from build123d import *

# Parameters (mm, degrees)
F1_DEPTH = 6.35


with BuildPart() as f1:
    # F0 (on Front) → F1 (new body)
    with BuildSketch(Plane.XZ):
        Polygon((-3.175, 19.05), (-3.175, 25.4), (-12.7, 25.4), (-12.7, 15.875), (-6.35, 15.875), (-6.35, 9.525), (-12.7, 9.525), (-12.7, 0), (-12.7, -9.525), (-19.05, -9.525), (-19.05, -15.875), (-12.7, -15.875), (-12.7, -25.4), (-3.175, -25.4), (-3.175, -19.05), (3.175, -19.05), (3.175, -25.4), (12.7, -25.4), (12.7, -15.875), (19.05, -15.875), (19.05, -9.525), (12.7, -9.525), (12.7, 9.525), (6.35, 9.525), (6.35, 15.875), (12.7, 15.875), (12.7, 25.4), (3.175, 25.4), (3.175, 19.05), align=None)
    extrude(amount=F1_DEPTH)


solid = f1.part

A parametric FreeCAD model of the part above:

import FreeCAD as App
import Part
import Sketcher
from FreeCAD import Vector
Q = App.Units.Quantity


def add_polygon(sketch, points):
    """Adds a closed chain of lines whose ends are joined by coincident constraints."""
    first, n = sketch.GeometryCount, len(points)
    for a, b in zip(points, points[1:] + points[:1]):
        sketch.addGeometry(Part.LineSegment(App.Vector(*a, 0), App.Vector(*b, 0)), False)
    for i in range(n):
        sketch.addConstraint(Sketcher.Constraint("Coincident", first + i, 2, first + (i + 1) % n, 1))

doc = App.newDocument("Part")
params = doc.addObject("Spreadsheet::Sheet", "Params")
for row, (alias, value) in enumerate([
    ("sketch1_width", "0.25 in"),
    ("pad1_length", "0.25 in"),
], start=1):
    params.set(f"A{row}", alias)
    params.set(f"B{row}", "=" + value)
    params.setAlias(f"B{row}", alias)

body = doc.addObject("PartDesign::Body", "Body")

# Sketch on XZ plane
sketch1 = body.newObject("Sketcher::SketchObject", "Sketch")
sketch1.AttachmentSupport = (doc.getObject("XZ_Plane"), [""])
sketch1.MapMode = "FlatFace"
add_polygon(sketch1, [(-3, 19), (-3, 25), (-13, 25), (-13, 16), (-6, 16), (-6, 10), (-13, 10), (-13, -10), (-19, -10), (-19, -16), (-13, -16), (-13, -25), (-3, -25), (-3, -19), (3, -19), (3, -25), (13, -25), (13, -16), (19, -16), (19, -10), (13, -10), (13, 10), (6, 10), (6, 16), (13, 16), (13, 25), (3, 25), (3, 19)])  # lines 0-27
sketch1.addConstraint([
    Sketcher.Constraint("Vertical", 0),
    Sketcher.Constraint("Horizontal", 1),
    Sketcher.Constraint("Vertical", 2),
    Sketcher.Constraint("Horizontal", 3),
    Sketcher.Constraint("Vertical", 4),
    Sketcher.Constraint("Horizontal", 5),
    Sketcher.Constraint("Vertical", 6),
    Sketcher.Constraint("Horizontal", 7),
    Sketcher.Constraint("Vertical", 8),
    Sketcher.Constraint("Horizontal", 9),
    Sketcher.Constraint("Vertical", 10),
    Sketcher.Constraint("Horizontal", 11),
    Sketcher.Constraint("Vertical", 12),
    Sketcher.Constraint("Horizontal", 13),
    Sketcher.Constraint("Vertical", 14),
    Sketcher.Constraint("Horizontal", 15),
    Sketcher.Constraint("Vertical", 16),
    Sketcher.Constraint("Horizontal", 17),
    Sketcher.Constraint("Vertical", 18),
    Sketcher.Constraint("Horizontal", 19),
    Sketcher.Constraint("Vertical", 20),
    Sketcher.Constraint("Horizontal", 21),
    Sketcher.Constraint("Vertical", 22),
    Sketcher.Constraint("Horizontal", 23),
    Sketcher.Constraint("Vertical", 24),
    Sketcher.Constraint("Horizontal", 25),
    Sketcher.Constraint("Vertical", 26),
    Sketcher.Constraint("Horizontal", 27),
    Sketcher.Constraint("Symmetric", 0, 2, 14, 2, -1, 1),
    Sketcher.Constraint("Symmetric", 2, 2, 16, 2, -1, 1),
    Sketcher.Constraint("Symmetric", 5, 2, 19, 2, -1, 1),
    Sketcher.Constraint("Symmetric", 9, 2, 23, 2, -1, 1),
    Sketcher.Constraint("Symmetric", 11, 2, 25, 2, -1, 1),
    Sketcher.Constraint("Symmetric", 11, 2, 14, 2, -2),
    Sketcher.Constraint("Symmetric", 9, 2, 16, 2, -2),
    Sketcher.Constraint("Symmetric", 7, 2, 18, 2, -2),
    Sketcher.Constraint("Symmetric", 4, 2, 21, 2, -2),
    Sketcher.Constraint("Vertical", 2, 2, 5, 2),
    Sketcher.Constraint("Equal", 5, 7),
    Sketcher.Constraint("Equal", 9, 13),
    Sketcher.Constraint("Equal", 27, 0),
    Sketcher.Constraint("Equal", 25, 2),
    Sketcher.Constraint("Equal", 0, 4),
    Sketcher.Constraint("Equal", 8, 12),
    Sketcher.Constraint("DistanceY", -1, 1, 0, 2, Q("1 in")),
    Sketcher.Constraint("DistanceY", 6, 2, 2, 2, Q("1 in")),
    Sketcher.Constraint("DistanceX", 3, 1, 3, 2, Q("0.25 in")),
])
sketch1.setExpression("Constraints[74]", "Params.sketch1_width")
pad1 = body.newObject("PartDesign::Pad", "Pad")
pad1.Profile = sketch1
pad1.setExpression("Length", "Params.pad1_length")

doc.recompute()
